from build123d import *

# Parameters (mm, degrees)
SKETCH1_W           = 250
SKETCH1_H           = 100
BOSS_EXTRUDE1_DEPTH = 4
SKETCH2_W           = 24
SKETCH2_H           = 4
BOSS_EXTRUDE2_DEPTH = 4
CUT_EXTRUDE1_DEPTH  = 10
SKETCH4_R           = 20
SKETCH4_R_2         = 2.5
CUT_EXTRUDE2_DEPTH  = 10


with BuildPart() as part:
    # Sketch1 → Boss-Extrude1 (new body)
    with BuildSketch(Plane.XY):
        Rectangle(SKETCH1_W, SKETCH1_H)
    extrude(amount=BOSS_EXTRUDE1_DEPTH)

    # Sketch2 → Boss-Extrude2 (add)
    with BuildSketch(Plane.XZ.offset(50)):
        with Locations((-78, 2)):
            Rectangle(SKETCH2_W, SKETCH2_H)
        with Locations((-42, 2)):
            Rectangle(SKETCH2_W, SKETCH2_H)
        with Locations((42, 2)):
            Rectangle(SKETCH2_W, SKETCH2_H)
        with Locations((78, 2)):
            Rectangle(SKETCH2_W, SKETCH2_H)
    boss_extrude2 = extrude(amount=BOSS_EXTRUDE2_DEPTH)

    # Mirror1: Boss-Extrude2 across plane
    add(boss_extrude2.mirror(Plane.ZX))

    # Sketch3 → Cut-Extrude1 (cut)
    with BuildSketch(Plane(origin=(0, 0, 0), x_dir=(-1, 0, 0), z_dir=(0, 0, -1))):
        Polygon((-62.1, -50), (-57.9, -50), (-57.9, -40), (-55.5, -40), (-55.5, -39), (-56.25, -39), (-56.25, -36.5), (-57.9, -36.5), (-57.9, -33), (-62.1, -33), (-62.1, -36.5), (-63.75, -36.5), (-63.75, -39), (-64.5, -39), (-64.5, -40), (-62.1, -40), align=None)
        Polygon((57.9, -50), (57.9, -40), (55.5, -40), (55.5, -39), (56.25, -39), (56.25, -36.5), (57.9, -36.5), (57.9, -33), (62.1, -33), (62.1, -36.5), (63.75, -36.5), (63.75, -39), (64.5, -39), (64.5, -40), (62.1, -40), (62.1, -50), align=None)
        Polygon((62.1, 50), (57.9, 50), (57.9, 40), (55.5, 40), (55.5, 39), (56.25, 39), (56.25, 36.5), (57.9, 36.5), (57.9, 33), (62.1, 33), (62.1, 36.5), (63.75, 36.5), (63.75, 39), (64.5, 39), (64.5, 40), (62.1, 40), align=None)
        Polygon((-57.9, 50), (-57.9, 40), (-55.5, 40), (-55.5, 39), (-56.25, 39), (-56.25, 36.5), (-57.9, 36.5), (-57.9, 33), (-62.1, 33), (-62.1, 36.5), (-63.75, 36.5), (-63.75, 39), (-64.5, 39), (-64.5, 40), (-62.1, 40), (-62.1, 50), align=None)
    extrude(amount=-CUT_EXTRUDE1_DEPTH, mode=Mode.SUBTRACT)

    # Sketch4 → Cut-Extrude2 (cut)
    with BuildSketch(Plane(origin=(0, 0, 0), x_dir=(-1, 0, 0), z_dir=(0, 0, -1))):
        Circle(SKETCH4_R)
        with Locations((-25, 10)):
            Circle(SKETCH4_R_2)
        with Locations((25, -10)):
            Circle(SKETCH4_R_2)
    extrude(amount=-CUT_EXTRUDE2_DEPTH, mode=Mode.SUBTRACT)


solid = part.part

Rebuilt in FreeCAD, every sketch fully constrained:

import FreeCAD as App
import Part
import Sketcher

V = App.Vector
Q = App.Units.Quantity


def add_polygon(sketch, points):
    """Adds a closed chain of lines whose ends are joined by coincident constraints."""
    first, n = sketch.GeometryCount, len(points)
    for a, b in zip(points, points[1:] + points[:1]):
        sketch.addGeometry(Part.LineSegment(App.Vector(*a, 0), App.Vector(*b, 0)), False)
    for i in range(n):
        sketch.addConstraint(Sketcher.Constraint("Coincident", first + i, 2, first + (i + 1) % n, 1))

doc = App.newDocument("Part")
body = doc.addObject("PartDesign::Body", "Body")

# Sketch on XY plane
sketch1 = body.newObject("Sketcher::SketchObject", "Sketch")
sketch1.AttachmentSupport = (doc.getObject("XY_Plane"), [""])
sketch1.MapMode = "FlatFace"
add_polygon(sketch1, [(-125, 50), (-125, -50), (125, -50), (125, 50)])  # lines 0-3
sketch1.addConstraint(Sketcher.Constraint("Vertical", 0))
sketch1.addConstraint(Sketcher.Constraint("Horizontal", 1))
sketch1.addConstraint(Sketcher.Constraint("Vertical", 2))
sketch1.addConstraint(Sketcher.Constraint("Horizontal", 3))
sketch1.addConstraint(Sketcher.Constraint("Symmetric", 0, 2, 2, 2, -1, 1))
sketch1.addConstraint(Sketcher.Constraint("DistanceX", 1, 1, 1, 2, Q("250 mm")))
sketch1.addConstraint(Sketcher.Constraint("DistanceY", 0, 2, 0, 1, Q("100 mm")))
pad1 = body.newObject("PartDesign::Pad", "Pad")
pad1.Profile = sketch1
pad1.Length = 4

# Sketch on XZ plane
sketch2 = body.newObject("Sketcher::SketchObject", "Sketch001")
sketch2.AttachmentSupport = (doc.getObject("XZ_Plane"), [""])
sketch2.MapMode = "FlatFace"
sketch2.AttachmentOffset = App.Placement(V(0, 0, 50), App.Rotation())
add_polygon(sketch2, [(-90, 4), (-90, 0), (-66, 0), (-66, 4)])  # lines 0-3
add_polygon(sketch2, [(-54, 4), (-54, 0), (-30, 0), (-30, 4)])  # lines 4-7
add_polygon(sketch2, [(30, 4), (30, 0), (54, 0), (54, 4)])  # lines 8-11
add_polygon(sketch2, [(66, 4), (66, 0), (90, 0), (90, 4)])  # lines 12-15
sketch2.addConstraint(Sketcher.Constraint("Vertical", 0))
sketch2.addConstraint(Sketcher.Constraint("Horizontal", 1))
sketch2.addConstraint(Sketcher.Constraint("Vertical", 2))
sketch2.addConstraint(Sketcher.Constraint("Horizontal", 3))
sketch2.addConstraint(Sketcher.Constraint("Vertical", 4))
sketch2.addConstraint(Sketcher.Constraint("Horizontal", 5))
sketch2.addConstraint(Sketcher.Constraint("Vertical", 6))
sketch2.addConstraint(Sketcher.Constraint("Horizontal", 7))
sketch2.addConstraint(Sketcher.Constraint("Vertical", 8))
sketch2.addConstraint(Sketcher.Constraint("Horizontal", 9))
sketch2.addConstraint(Sketcher.Constraint("Vertical", 10))
sketch2.addConstraint(Sketcher.Constraint("Horizontal", 11))
sketch2.addConstraint(Sketcher.Constraint("Vertical", 12))
sketch2.addConstraint(Sketcher.Constraint("Horizontal", 13))
sketch2.addConstraint(Sketcher.Constraint("Vertical", 14))
sketch2.addConstraint(Sketcher.Constraint("Horizontal", 15))
sketch2.addConstraint(Sketcher.Constraint("Symmetric", 5, 2, 8, 2, -1, 1))
sketch2.addConstraint(Sketcher.Constraint("Symmetric", 1, 2, 12, 2, -1, 1))
sketch2.addConstraint(Sketcher.Constraint("Symmetric", 4, 2, 9, 2, -2))
sketch2.addConstraint(Sketcher.Constraint("Symmetric", 0, 2, 13, 2, -2))
sketch2.addConstraint(Sketcher.Constraint("Horizontal", 3, 2, 6, 2))
sketch2.addConstraint(Sketcher.Constraint("Horizontal", 7, 2, 10, 2))
sketch2.addConstraint(Sketcher.Constraint("Horizontal", 11, 2, 14, 2))
sketch2.addConstraint(Sketcher.Constraint("Equal", 3, 5))
sketch2.addConstraint(Sketcher.Constraint("DistanceX", 1, 1, 1, 2, Q("24 mm")))
sketch2.addConstraint(Sketcher.Constraint("DistanceY", 0, 2, 0, 1, Q("4 mm")))
sketch2.addConstraint(Sketcher.Constraint("DistanceX", 0, 2, -1, 1, Q("90 mm")))
sketch2.addConstraint(Sketcher.Constraint("DistanceX", 4, 2, -1, 1, Q("54 mm")))
pad2 = body.newObject("PartDesign::Pad", "Pad001")
pad2.Profile = sketch2
pad2.Length = 4
doc.recompute()

mirrored = body.newObject("PartDesign::Mirrored", "Mirrored")
mirrored.Originals = [pad2]
mirrored.MirrorPlane = (doc.getObject("XZ_Plane"), [""])
body.Tip = mirrored

# Sketch on XY plane
sketch3 = body.newObject("Sketcher::SketchObject", "Sketch002")
sketch3.AttachmentSupport = (doc.getObject("XY_Plane"), [""])
sketch3.MapMode = "FlatFace"
add_polygon(sketch3, [(62.1, -50), (57.9, -50), (57.9, -40), (55.5, -40), (55.5, -39), (56.2, -39), (56.2, -36.5), (57.9, -36.5), (57.9, -33), (62.1, -33), (62.1, -36.5), (63.8, -36.5), (63.8, -39), (64.5, -39), (64.5, -40), (62.1, -40)])  # lines 0-15
add_polygon(sketch3, [(-57.9, -40), (-57.9, -50), (-62.1, -50), (-62.1, -40), (-64.5, -40), (-64.5, -39), (-63.8, -39), (-63.8, -36.5), (-62.1, -36.5), (-62.1, -33), (-57.9, -33), (-57.9, -36.5), (-56.2, -36.5), (-56.2, -39), (-55.5, -39), (-55.5, -40)])  # lines 16-31
add_polygon(sketch3, [(-62.1, 50), (-57.9, 50), (-57.9, 40), (-55.5, 40), (-55.5, 39), (-56.2, 39), (-56.2, 36.5), (-57.9, 36.5), (-57.9, 33), (-62.1, 33), (-62.1, 36.5), (-63.8, 36.5), (-63.8, 39), (-64.5, 39), (-64.5, 40), (-62.1, 40)])  # lines 32-47
add_polygon(sketch3, [(57.9, 40), (57.9, 50), (62.1, 50), (62.1, 40), (64.5, 40), (64.5, 39), (63.8, 39), (63.8, 36.5), (62.1, 36.5), (62.1, 33), (57.9, 33), (57.9, 36.5), (56.2, 36.5), (56.2, 39), (55.5, 39), (55.5, 40)])  # lines 48-63
sketch3.addConstraint(Sketcher.Constraint("Horizontal", 0))
sketch3.addConstraint(Sketcher.Constraint("Vertical", 1))
sketch3.addConstraint(Sketcher.Constraint("Horizontal", 2))
sketch3.addConstraint(Sketcher.Constraint("Vertical", 3))
sketch3.addConstraint(Sketcher.Constraint("Horizontal", 4))
sketch3.addConstraint(Sketcher.Constraint("Vertical", 5))
sketch3.addConstraint(Sketcher.Constraint("Horizontal", 6))
sketch3.addConstraint(Sketcher.Constraint("Vertical", 7))
sketch3.addConstraint(Sketcher.Constraint("Horizontal", 8))
sketch3.addConstraint(Sketcher.Constraint("Vertical", 9))
sketch3.addConstraint(Sketcher.Constraint("Horizontal", 10))
sketch3.addConstraint(Sketcher.Constraint("Vertical", 11))
sketch3.addConstraint(Sketcher.Constraint("Horizontal", 12))
sketch3.addConstraint(Sketcher.Constraint("Vertical", 13))
sketch3.addConstraint(Sketcher.Constraint("Horizontal", 14))
sketch3.addConstraint(Sketcher.Constraint("Vertical", 15))
sketch3.addConstraint(Sketcher.Constraint("Vertical", 16))
sketch3.addConstraint(Sketcher.Constraint("Horizontal", 17))
sketch3.addConstraint(Sketcher.Constraint("Vertical", 18))
sketch3.addConstraint(Sketcher.Constraint("Horizontal", 19))
sketch3.addConstraint(Sketcher.Constraint("Vertical", 20))
sketch3.addConstraint(Sketcher.Constraint("Horizontal", 21))
sketch3.addConstraint(Sketcher.Constraint("Vertical", 22))
sketch3.addConstraint(Sketcher.Constraint("Horizontal", 23))
sketch3.addConstraint(Sketcher.Constraint("Vertical", 24))
sketch3.addConstraint(Sketcher.Constraint("Horizontal", 25))
sketch3.addConstraint(Sketcher.Constraint("Vertical", 26))
sketch3.addConstraint(Sketcher.Constraint("Horizontal", 27))
sketch3.addConstraint(Sketcher.Constraint("Vertical", 28))
sketch3.addConstraint(Sketcher.Constraint("Horizontal", 29))
sketch3.addConstraint(Sketcher.Constraint("Vertical", 30))
sketch3.addConstraint(Sketcher.Constraint("Horizontal", 31))
sketch3.addConstraint(Sketcher.Constraint("Horizontal", 32))
sketch3.addConstraint(Sketcher.Constraint("Vertical", 33))
sketch3.addConstraint(Sketcher.Constraint("Horizontal", 34))
sketch3.addConstraint(Sketcher.Constraint("Vertical", 35))
sketch3.addConstraint(Sketcher.Constraint("Horizontal", 36))
sketch3.addConstraint(Sketcher.Constraint("Vertical", 37))
sketch3.addConstraint(Sketcher.Constraint("Horizontal", 38))
sketch3.addConstraint(Sketcher.Constraint("Vertical", 39))
sketch3.addConstraint(Sketcher.Constraint("Horizontal", 40))
sketch3.addConstraint(Sketcher.Constraint("Vertical", 41))
sketch3.addConstraint(Sketcher.Constraint("Horizontal", 42))
sketch3.addConstraint(Sketcher.Constraint("Vertical", 43))
sketch3.addConstraint(Sketcher.Constraint("Horizontal", 44))
sketch3.addConstraint(Sketcher.Constraint("Vertical", 45))
sketch3.addConstraint(Sketcher.Constraint("Horizontal", 46))
sketch3.addConstraint(Sketcher.Constraint("Vertical", 47))
sketch3.addConstraint(Sketcher.Constraint("Vertical", 48))
sketch3.addConstraint(Sketcher.Constraint("Horizontal", 49))
sketch3.addConstraint(Sketcher.Constraint("Vertical", 50))
sketch3.addConstraint(Sketcher.Constraint("Horizontal", 51))
sketch3.addConstraint(Sketcher.Constraint("Vertical", 52))
sketch3.addConstraint(Sketcher.Constraint("Horizontal", 53))
sketch3.addConstraint(Sketcher.Constraint("Vertical", 54))
sketch3.addConstraint(Sketcher.Constraint("Horizontal", 55))
sketch3.addConstraint(Sketcher.Constraint("Vertical", 56))
sketch3.addConstraint(Sketcher.Constraint("Horizontal", 57))
sketch3.addConstraint(Sketcher.Constraint("Vertical", 58))
sketch3.addConstraint(Sketcher.Constraint("Horizontal", 59))
sketch3.addConstraint(Sketcher.Constraint("Vertical", 60))
sketch3.addConstraint(Sketcher.Constraint("Horizontal", 61))
sketch3.addConstraint(Sketcher.Constraint("Vertical", 62))
sketch3.addConstraint(Sketcher.Constraint("Horizontal", 63))
sketch3.addConstraint(Sketcher.Constraint("Symmetric", 0, 2, 32, 2, -1, 1))
sketch3.addConstraint(Sketcher.Constraint("Symmetric", 2, 2, 34, 2, -1, 1))
sketch3.addConstraint(Sketcher.Constraint("Symmetric", 4, 2, 36, 2, -1, 1))
sketch3.addConstraint(Sketcher.Constraint("Symmetric", 6, 2, 38, 2, -1, 1))
sketch3.addConstraint(Sketcher.Constraint("Symmetric", 8, 2, 40, 2, -1, 1))
sketch3.addConstraint(Sketcher.Constraint("Symmetric", 10, 2, 42, 2, -1, 1))
sketch3.addConstraint(Sketcher.Constraint("Symmetric", 12, 2, 44, 2, -1, 1))
sketch3.addConstraint(Sketcher.Constraint("Symmetric", 14, 2, 46, 2, -1, 1))
sketch3.addConstraint(Sketcher.Constraint("Symmetric", 16, 2, 48, 2, -1, 1))
sketch3.addConstraint(Sketcher.Constraint("Symmetric", 18, 2, 50, 2, -1, 1))
sketch3.addConstraint(Sketcher.Constraint("Symmetric", 20, 2, 52, 2, -1, 1))
sketch3.addConstraint(Sketcher.Constraint("Symmetric", 22, 2, 54, 2, -1, 1))
sketch3.addConstraint(Sketcher.Constraint("Symmetric", 24, 2, 56, 2, -1, 1))
sketch3.addConstraint(Sketcher.Constraint("Symmetric", 26, 2, 58, 2, -1, 1))
sketch3.addConstraint(Sketcher.Constraint("Symmetric", 28, 2, 60, 2, -1, 1))
sketch3.addConstraint(Sketcher.Constraint("Symmetric", 30, 2, 62, 2, -1, 1))
sketch3.addConstraint(Sketcher.Constraint("Symmetric", 0, 2, 16, 2, -2))
sketch3.addConstraint(Sketcher.Constraint("Symmetric", 14, 2, 18, 2, -2))
sketch3.addConstraint(Sketcher.Constraint("Symmetric", 12, 2, 20, 2, -2))
sketch3.addConstraint(Sketcher.Constraint("Symmetric", 10, 2, 22, 2, -2))
sketch3.addConstraint(Sketcher.Constraint("Symmetric", 8, 2, 24, 2, -2))
sketch3.addConstraint(Sketcher.Constraint("Symmetric", 6, 2, 26, 2, -2))
sketch3.addConstraint(Sketcher.Constraint("Symmetric", 4, 2, 28, 2, -2))
sketch3.addConstraint(Sketcher.Constraint("Symmetric", 2, 2, 30, 2, -2))
sketch3.addConstraint(Sketcher.Constraint("Horizontal", 6, 2, 9, 2))
sketch3.addConstraint(Sketcher.Constraint("Horizontal", 4, 2, 11, 2))
sketch3.addConstraint(Sketcher.Constraint("Horizontal", 2, 2, 13, 2))
sketch3.addConstraint(Sketcher.Constraint("Vertical", 1, 2, 6, 2))
sketch3.addConstraint(Sketcher.Constraint("Vertical", 9, 2, 14, 2))
sketch3.addConstraint(Sketcher.Constraint("Equal", 6, 10))
sketch3.addConstraint(Sketcher.Constraint("Equal", 4, 12))
sketch3.addConstraint(Sketcher.Constraint("DistanceY", 1, 1, 1, 2, Q("10 mm")))
sketch3.addConstraint(Sketcher.Constraint("DistanceY", 3, 1, 3, 2, Q("1 mm")))
sketch3.addConstraint(Sketcher.Constraint("DistanceX", 0, 2, 0, 1, Q("4.2 mm")))
sketch3.addConstraint(Sketcher.Constraint("DistanceX", 2, 2, 2, 1, Q("2.4 mm")))
sketch3.addConstraint(Sketcher.Constraint("DistanceY", 5, 1, 5, 2, Q("2.5 mm")))
sketch3.addConstraint(Sketcher.Constraint("DistanceY", 7, 1, 7, 2, Q("3.5 mm")))
sketch3.addConstraint(Sketcher.Constraint("DistanceY", 0, 2, -1, 1, Q("50 mm")))
sketch3.addConstraint(Sketcher.Constraint("DistanceX", 4, 1, 4, 2, Q("0.75 mm")))
sketch3.addConstraint(Sketcher.Constraint("DistanceX", -1, 1, 0, 2, Q("57.9 mm")))
pocket1 = body.newObject("PartDesign::Pocket", "Pocket")
pocket1.Profile = sketch3
pocket1.Length = 10
pocket1.Reversed = True

# Sketch on XY plane
sketch4 = body.newObject("Sketcher::SketchObject", "Sketch003")
sketch4.AttachmentSupport = (doc.getObject("XY_Plane"), [""])
sketch4.MapMode = "FlatFace"
sketch4.addGeometry(Part.Circle(V(0, 0, 0), V(0, 0, 1), 20), False)
sketch4.addGeometry(Part.Circle(V(25, 10, 0), V(0, 0, 1), 2.5), False)
sketch4.addGeometry(Part.Circle(V(-25, -10, 0), V(0, 0, 1), 2.5), False)
sketch4.addConstraint(Sketcher.Constraint("Coincident", 0, 3, -1, 1))
sketch4.addConstraint(Sketcher.Constraint("Equal", 1, 2))
sketch4.addConstraint(Sketcher.Constraint("Symmetric", 1, 3, 2, 3, -1, 1))
sketch4.addConstraint(Sketcher.Constraint("Diameter", 0, Q("40 mm")))
sketch4.addConstraint(Sketcher.Constraint("Diameter", 1, Q("5 mm")))
sketch4.addConstraint(Sketcher.Constraint("DistanceX", -1, 1, 1, 3, Q("25 mm")))
sketch4.addConstraint(Sketcher.Constraint("DistanceY", -1, 1, 1, 3, Q("10 mm")))
pocket2 = body.newObject("PartDesign::Pocket", "Pocket001")
pocket2.Profile = sketch4
pocket2.Length = 10
pocket2.Reversed = True

doc.recompute()
